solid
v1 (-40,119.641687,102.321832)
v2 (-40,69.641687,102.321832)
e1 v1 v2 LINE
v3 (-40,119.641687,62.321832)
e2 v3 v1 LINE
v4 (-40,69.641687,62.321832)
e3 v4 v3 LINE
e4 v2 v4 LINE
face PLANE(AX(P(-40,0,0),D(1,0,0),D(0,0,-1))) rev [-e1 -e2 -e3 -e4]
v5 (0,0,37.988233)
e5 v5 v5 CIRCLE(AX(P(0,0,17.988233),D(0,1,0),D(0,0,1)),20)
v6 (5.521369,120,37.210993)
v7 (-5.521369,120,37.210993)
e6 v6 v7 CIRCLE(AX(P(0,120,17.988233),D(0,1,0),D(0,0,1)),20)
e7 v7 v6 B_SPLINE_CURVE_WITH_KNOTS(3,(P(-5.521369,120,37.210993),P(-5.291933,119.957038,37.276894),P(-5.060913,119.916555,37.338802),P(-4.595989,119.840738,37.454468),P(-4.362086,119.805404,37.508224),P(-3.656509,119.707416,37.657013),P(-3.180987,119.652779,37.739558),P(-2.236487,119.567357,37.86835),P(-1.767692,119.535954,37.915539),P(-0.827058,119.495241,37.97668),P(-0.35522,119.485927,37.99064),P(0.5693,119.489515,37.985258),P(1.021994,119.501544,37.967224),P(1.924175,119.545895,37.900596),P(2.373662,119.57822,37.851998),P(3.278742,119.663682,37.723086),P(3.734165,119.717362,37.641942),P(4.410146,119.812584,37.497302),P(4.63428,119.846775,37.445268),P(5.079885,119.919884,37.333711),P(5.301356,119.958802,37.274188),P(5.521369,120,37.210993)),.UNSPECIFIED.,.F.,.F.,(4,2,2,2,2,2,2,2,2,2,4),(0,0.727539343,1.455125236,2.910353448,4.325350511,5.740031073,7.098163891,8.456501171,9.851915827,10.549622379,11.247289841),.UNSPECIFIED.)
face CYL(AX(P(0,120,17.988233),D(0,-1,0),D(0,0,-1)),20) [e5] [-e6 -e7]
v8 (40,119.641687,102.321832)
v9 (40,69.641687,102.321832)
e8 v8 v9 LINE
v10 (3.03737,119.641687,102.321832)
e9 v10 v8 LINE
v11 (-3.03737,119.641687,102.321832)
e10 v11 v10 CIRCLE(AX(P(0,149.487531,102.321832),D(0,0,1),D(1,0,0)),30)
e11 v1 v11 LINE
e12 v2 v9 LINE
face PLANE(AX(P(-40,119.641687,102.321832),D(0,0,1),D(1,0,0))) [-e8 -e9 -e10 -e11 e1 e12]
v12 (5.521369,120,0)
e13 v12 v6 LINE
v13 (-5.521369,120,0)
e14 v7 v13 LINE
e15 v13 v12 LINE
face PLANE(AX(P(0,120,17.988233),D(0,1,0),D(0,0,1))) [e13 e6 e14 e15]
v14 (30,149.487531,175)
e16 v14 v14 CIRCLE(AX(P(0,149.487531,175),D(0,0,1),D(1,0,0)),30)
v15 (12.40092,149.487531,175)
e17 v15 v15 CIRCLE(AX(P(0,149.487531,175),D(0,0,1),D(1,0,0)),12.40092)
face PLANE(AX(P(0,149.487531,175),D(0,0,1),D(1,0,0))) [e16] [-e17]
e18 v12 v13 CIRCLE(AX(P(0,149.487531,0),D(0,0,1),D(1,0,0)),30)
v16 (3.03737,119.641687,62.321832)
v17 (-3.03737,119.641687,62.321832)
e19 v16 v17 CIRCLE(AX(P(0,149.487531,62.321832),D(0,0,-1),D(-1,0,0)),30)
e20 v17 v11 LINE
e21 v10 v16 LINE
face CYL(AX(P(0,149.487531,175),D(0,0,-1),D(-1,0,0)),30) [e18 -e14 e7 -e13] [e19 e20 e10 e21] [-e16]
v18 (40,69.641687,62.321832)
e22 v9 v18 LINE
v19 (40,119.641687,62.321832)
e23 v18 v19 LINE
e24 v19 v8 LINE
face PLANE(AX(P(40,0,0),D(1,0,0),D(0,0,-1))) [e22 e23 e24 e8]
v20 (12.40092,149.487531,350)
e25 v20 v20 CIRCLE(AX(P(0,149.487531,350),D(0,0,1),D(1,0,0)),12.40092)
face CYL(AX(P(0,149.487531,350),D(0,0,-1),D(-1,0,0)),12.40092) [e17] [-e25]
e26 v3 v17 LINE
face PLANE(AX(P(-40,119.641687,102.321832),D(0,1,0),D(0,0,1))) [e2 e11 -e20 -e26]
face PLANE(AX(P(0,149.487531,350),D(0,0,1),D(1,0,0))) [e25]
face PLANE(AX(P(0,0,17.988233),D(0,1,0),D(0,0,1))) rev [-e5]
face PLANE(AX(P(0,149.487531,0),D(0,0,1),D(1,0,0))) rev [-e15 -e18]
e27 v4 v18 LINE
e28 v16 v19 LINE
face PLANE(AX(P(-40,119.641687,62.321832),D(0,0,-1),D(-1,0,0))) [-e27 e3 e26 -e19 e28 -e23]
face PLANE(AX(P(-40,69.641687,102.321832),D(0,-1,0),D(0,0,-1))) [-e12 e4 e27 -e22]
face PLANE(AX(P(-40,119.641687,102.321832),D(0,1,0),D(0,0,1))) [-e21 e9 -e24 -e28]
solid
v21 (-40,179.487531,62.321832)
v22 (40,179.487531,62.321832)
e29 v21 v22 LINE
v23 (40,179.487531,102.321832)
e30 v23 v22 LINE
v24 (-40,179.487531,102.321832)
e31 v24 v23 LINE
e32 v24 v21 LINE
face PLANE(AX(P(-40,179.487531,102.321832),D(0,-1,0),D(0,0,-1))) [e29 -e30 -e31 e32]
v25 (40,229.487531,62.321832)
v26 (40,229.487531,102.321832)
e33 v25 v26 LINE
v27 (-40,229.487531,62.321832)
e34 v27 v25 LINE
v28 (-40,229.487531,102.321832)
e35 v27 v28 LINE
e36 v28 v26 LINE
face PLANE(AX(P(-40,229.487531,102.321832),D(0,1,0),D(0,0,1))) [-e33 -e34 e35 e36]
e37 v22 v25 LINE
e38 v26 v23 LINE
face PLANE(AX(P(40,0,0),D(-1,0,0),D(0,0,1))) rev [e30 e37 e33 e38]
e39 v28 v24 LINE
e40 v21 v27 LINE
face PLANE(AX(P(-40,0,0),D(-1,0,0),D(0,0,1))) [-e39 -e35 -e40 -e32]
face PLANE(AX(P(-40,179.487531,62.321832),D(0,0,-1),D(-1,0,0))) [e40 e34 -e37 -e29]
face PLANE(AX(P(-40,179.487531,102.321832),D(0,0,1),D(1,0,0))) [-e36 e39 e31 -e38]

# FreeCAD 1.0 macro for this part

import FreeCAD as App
import Part
import Sketcher
from FreeCAD import Vector
Q = App.Units.Quantity

doc = App.newDocument("Part")
body = doc.addObject("PartDesign::Body", "Body")
body.AllowCompound = True

sketch1 = body.newObject("Sketcher::SketchObject", "Sketch")
sketch1.AttachmentSupport = (doc.getObject("XZ_Plane"), [""])
sketch1.MapMode = "FlatFace"
sketch1.addGeometry(Part.Circle(Vector(0, 17.988233, 0), Vector(0, 0, 1), 20), False)
sketch1.addConstraint([
    Sketcher.Constraint("PointOnObject", 0, 3, -2),
    Sketcher.Constraint("Diameter", 0, Q("40 mm")),
    Sketcher.Constraint("DistanceY", -1, 1, 0, 3, Q("17.988233 mm")),
])
pad1 = body.newObject("PartDesign::Pad", "Pad")
pad1.Profile = sketch1
pad1.Length = 120
pad1.Reversed = True

sketch2 = body.newObject("Sketcher::SketchObject", "Sketch001")
sketch2.AttachmentSupport = (doc.getObject("XY_Plane"), [""])
sketch2.MapMode = "FlatFace"
sketch2.addGeometry(Part.Circle(Vector(0, 149.487531, 0), Vector(0, 0, 1), 30), False)
sketch2.addConstraint([
    Sketcher.Constraint("PointOnObject", 0, 3, -2),
    Sketcher.Constraint("Diameter", 0, Q("60 mm")),
    Sketcher.Constraint("DistanceY", -1, 1, 0, 3, Q("149.487531 mm")),
])
pad2 = body.newObject("PartDesign::Pad", "Pad001")
pad2.Profile = sketch2
pad2.Length = 175

sketch3 = body.newObject("Sketcher::SketchObject", "Sketch002")
sketch3.AttachmentSupport = (doc.getObject("XY_Plane"), [""])
sketch3.MapMode = "FlatFace"
sketch3.AttachmentOffset = App.Placement(Vector(0, 0, 175), App.Rotation())
sketch3.addGeometry(Part.Circle(Vector(0, 149.487531, 0), Vector(0, 0, 1), 12.40092), False)
sketch3.addConstraint([
    Sketcher.Constraint("PointOnObject", 0, 3, -2),
    Sketcher.Constraint("Diameter", 0, Q("24.801841 mm")),
    Sketcher.Constraint("DistanceY", -1, 1, 0, 3, Q("149.487531 mm")),
])
pad3 = body.newObject("PartDesign::Pad", "Pad002")
pad3.Profile = sketch3
pad3.Length = 175

sketch4 = body.newObject("Sketcher::SketchObject", "Sketch003")
sketch4.AttachmentSupport = (doc.getObject("YZ_Plane"), [""])
sketch4.MapMode = "FlatFace"
sketch4.addGeometry([
    Part.LineSegment(Vector(119.641687, 102.321832, 0), Vector(69.641687, 102.321832, 0)),
    Part.LineSegment(Vector(69.641687, 102.321832, 0), Vector(69.641687, 62.321832, 0)),
    Part.LineSegment(Vector(69.641687, 62.321832, 0), Vector(119.641687, 62.321832, 0)),
    Part.LineSegment(Vector(119.641687, 62.321832, 0), Vector(119.641687, 102.321832, 0)),
    Part.LineSegment(Vector(229.487531, 102.321832, 0), Vector(179.487531, 102.321832, 0)),
    Part.LineSegment(Vector(179.487531, 102.321832, 0), Vector(179.487531, 62.321832, 0)),
    Part.LineSegment(Vector(179.487531, 62.321832, 0), Vector(229.487531, 62.321832, 0)),
    Part.LineSegment(Vector(229.487531, 62.321832, 0), Vector(229.487531, 102.321832, 0)),
], False)
sketch4.addConstraint([
    Sketcher.Constraint("Coincident", 0, 2, 1, 1),
    Sketcher.Constraint("Coincident", 1, 2, 2, 1),
    Sketcher.Constraint("Coincident", 2, 2, 3, 1),
    Sketcher.Constraint("Coincident", 3, 2, 0, 1),
    Sketcher.Constraint("Coincident", 4, 2, 5, 1),
    Sketcher.Constraint("Coincident", 5, 2, 6, 1),
    Sketcher.Constraint("Coincident", 6, 2, 7, 1),
    Sketcher.Constraint("Coincident", 7, 2, 4, 1),
    Sketcher.Constraint("Horizontal", 0),
    Sketcher.Constraint("Vertical", 1),
    Sketcher.Constraint("Horizontal", 2),
    Sketcher.Constraint("Vertical", 3),
    Sketcher.Constraint("Horizontal", 4),
    Sketcher.Constraint("Vertical", 5),
    Sketcher.Constraint("Horizontal", 6),
    Sketcher.Constraint("Vertical", 7),
    Sketcher.Constraint("Horizontal", 3, 2, 4, 2),
    Sketcher.Constraint("Horizontal", 2, 2, 5, 2),
    Sketcher.Constraint("Equal", 2, 4),
    Sketcher.Constraint("DistanceX", 0, 2, 0, 1, Q("50 mm")),
    Sketcher.Constraint("DistanceY", 1, 2, 1, 1, Q("40 mm")),
    Sketcher.Constraint("DistanceY", -1, 1, 0, 2, Q("102.321832 mm")),
    Sketcher.Constraint("DistanceX", -1, 1, 4, 2, Q("179.487531 mm")),
    Sketcher.Constraint("DistanceX", -1, 1, 0, 2, Q("69.641687 mm")),
])
pad4 = body.newObject("PartDesign::Pad", "Pad003")
pad4.Profile = sketch4
pad4.Type = "TwoLengths"
pad4.Length = 40
pad4.Length2 = 40

doc.recompute()
